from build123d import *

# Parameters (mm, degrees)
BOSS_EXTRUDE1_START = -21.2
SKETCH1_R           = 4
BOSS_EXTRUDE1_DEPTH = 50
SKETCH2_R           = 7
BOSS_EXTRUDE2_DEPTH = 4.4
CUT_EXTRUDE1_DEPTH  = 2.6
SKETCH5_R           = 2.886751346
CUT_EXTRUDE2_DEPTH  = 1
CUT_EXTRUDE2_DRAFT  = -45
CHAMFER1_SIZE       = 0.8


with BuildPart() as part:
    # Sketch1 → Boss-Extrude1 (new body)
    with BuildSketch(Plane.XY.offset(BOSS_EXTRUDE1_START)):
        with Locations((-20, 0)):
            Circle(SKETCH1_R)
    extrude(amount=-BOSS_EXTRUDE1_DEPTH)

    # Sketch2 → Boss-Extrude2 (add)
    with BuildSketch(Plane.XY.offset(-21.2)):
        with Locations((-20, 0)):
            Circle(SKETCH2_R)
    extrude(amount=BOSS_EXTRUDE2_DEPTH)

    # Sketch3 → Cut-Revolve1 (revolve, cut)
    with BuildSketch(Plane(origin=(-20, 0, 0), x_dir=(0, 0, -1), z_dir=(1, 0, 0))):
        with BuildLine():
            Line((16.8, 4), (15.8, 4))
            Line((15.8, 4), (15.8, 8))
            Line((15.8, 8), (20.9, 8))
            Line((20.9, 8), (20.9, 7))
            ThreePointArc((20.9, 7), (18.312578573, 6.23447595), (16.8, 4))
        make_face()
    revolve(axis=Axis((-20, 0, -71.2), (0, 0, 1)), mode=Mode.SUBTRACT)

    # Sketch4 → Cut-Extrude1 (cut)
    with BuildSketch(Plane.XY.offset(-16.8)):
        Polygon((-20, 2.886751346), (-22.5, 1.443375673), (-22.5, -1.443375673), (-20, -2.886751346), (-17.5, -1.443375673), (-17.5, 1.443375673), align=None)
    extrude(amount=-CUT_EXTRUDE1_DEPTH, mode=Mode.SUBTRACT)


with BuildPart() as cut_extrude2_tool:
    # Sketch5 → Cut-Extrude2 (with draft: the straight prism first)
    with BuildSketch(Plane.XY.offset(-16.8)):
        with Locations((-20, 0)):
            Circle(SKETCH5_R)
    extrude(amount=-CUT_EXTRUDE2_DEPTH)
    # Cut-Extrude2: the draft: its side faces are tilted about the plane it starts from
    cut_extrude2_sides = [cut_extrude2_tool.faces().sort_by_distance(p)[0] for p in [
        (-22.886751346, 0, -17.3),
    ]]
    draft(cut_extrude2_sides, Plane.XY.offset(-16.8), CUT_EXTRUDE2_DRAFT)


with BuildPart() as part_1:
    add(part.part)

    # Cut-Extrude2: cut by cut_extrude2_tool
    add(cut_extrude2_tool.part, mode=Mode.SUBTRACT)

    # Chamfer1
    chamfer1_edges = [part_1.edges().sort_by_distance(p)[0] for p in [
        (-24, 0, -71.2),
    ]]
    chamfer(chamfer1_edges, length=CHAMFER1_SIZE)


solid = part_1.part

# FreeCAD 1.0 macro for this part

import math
import FreeCAD as App
import Part
import Sketcher
from FreeCAD import Vector
Q = App.Units.Quantity


def edges_at(feature, points):
    """Names of the edges that pass closest to the given points."""
    edges = feature.Shape.Edges
    near = lambda p: min(range(len(edges)), key=lambda i: edges[i].distToShape(Part.Vertex(*p))[0])
    return sorted({f"Edge{near(p) + 1}" for p in points})


def faces_at(feature, points):
    """Names of the faces that lie closest to the given points."""
    faces = feature.Shape.Faces
    near = lambda p: min(range(len(faces)), key=lambda i: faces[i].distToShape(Part.Vertex(*p))[0])
    return sorted({f"Face{near(p) + 1}" for p in points})


def add_polygon(sketch, points):
    """Adds a closed chain of lines whose ends are joined by coincident constraints."""
    first, n = sketch.GeometryCount, len(points)
    for a, b in zip(points, points[1:] + points[:1]):
        sketch.addGeometry(Part.LineSegment(App.Vector(*a, 0), App.Vector(*b, 0)), False)
    for i in range(n):
        sketch.addConstraint(Sketcher.Constraint("Coincident", first + i, 2, first + (i + 1) % n, 1))

doc = App.newDocument("Part")
body = doc.addObject("PartDesign::Body", "Body")

# Sketch on XY plane
sketch1 = doc.addObject("Sketcher::SketchObject", "Sketch")
body.addObject(sketch1)
sketch1.AttachmentSupport = (doc.XY_Plane, [""])
sketch1.MapMode = "FlatFace"
sketch1.AttachmentOffset = App.Placement(Vector(0, 0, -21.2), App.Rotation())
sketch1.addGeometry(Part.Circle(Vector(-20, 0, 0), Vector(0, 0, 1), 4), False)
sketch1.addConstraint([
    Sketcher.Constraint("PointOnObject", 0, 3, -1),
    Sketcher.Constraint("Diameter", 0, 8.0),
    Sketcher.Constraint("DistanceX", 0, 3, -1, 1, 20.0),
])
pad1 = doc.addObject("PartDesign::Pad", "Pad")
body.addObject(pad1)
pad1.Profile = sketch1
pad1.Length = 50
pad1.Reversed = True

# Sketch on XY plane
sketch2 = doc.addObject("Sketcher::SketchObject", "Sketch001")
body.addObject(sketch2)
sketch2.AttachmentSupport = (doc.XY_Plane, [""])
sketch2.MapMode = "FlatFace"
sketch2.AttachmentOffset = App.Placement(Vector(0, 0, -21.2), App.Rotation())
sketch2.addGeometry(Part.Circle(Vector(-20, 0, 0), Vector(0, 0, 1), 7), False)
sketch2.addConstraint([
    Sketcher.Constraint("PointOnObject", 0, 3, -1),
    Sketcher.Constraint("Diameter", 0, 14.0),
    Sketcher.Constraint("DistanceX", 0, 3, -1, 1, 20.0),
])
pad2 = doc.addObject("PartDesign::Pad", "Pad001")
body.addObject(pad2)
pad2.Profile = sketch2
pad2.Length = 4.4

# Sketch on YZ plane
sketch3 = doc.addObject("Sketcher::SketchObject", "Sketch002")
body.addObject(sketch3)
sketch3.AttachmentSupport = (doc.YZ_Plane, [""])
sketch3.MapMode = "FlatFace"
sketch3.AttachmentOffset = App.Placement(Vector(0, 0, -20), App.Rotation())
sketch3.addGeometry([
    Part.LineSegment(Vector(4, -15.8, 0), Vector(4, -16.8, 0)),  # 0
    Part.ArcOfCircle(Part.Circle(Vector(3.006355, -20.674619, 0), Vector(0, 0, 1), 4), math.radians(-3.230062), math.radians(75.616477)),  # 1
    Part.LineSegment(Vector(7, -20.9, 0), Vector(8, -20.9, 0)),  # 2
    Part.LineSegment(Vector(8, -20.9, 0), Vector(8, -15.8, 0)),  # 3
    Part.LineSegment(Vector(8, -15.8, 0), Vector(4, -15.8, 0)),  # 4
], False)
sketch3.addConstraint([
    Sketcher.Constraint("Coincident", 0, 2, 1, 2),
    Sketcher.Constraint("Coincident", 1, 1, 2, 1),
    Sketcher.Constraint("Coincident", 2, 2, 3, 1),
    Sketcher.Constraint("Coincident", 3, 2, 4, 1),
    Sketcher.Constraint("Coincident", 4, 2, 0, 1),
    Sketcher.Constraint("Vertical", 0),
    Sketcher.Constraint("Horizontal", 2),
    Sketcher.Constraint("Vertical", 3),
    Sketcher.Constraint("Horizontal", 4),
    Sketcher.Constraint("Equal", 2, 0),
    Sketcher.Constraint("Radius", 1, 4.0),
    Sketcher.Constraint("DistanceX", 2, 1, 2, 2, 1.0),
    Sketcher.Constraint("DistanceX", 4, 2, 4, 1, 4.0),
    Sketcher.Constraint("DistanceY", 3, 1, 3, 2, 5.1),
    Sketcher.Constraint("DistanceX", -1, 1, 0, 2, 4.0),
    Sketcher.Constraint("DistanceY", 0, 2, -1, 1, 16.8),
])
groove = doc.addObject("PartDesign::Groove", "Groove")
body.addObject(groove)
groove.Profile = sketch3
groove.ReferenceAxis = (sketch3, ["V_Axis"])
groove.Angle = 360

# Sketch on XY plane
sketch4 = doc.addObject("Sketcher::SketchObject", "Sketch003")
body.addObject(sketch4)
sketch4.AttachmentSupport = (doc.XY_Plane, [""])
sketch4.MapMode = "FlatFace"
sketch4.AttachmentOffset = App.Placement(Vector(0, 0, -16.8), App.Rotation())
add_polygon(sketch4, [(-20, 2.886751), (-22.5, 1.443376), (-22.5, -1.443376), (-20, -2.886751), (-17.5, -1.443376), (-17.5, 1.443376)])  # lines 0-5
sketch4.addConstraint([
    Sketcher.Constraint("Vertical", 1),
    Sketcher.Constraint("Vertical", 4),
    Sketcher.Constraint("Symmetric", 2, 2, 5, 2, -1),
    Sketcher.Constraint("Parallel", 0, 3),
    Sketcher.Constraint("Parallel", 2, 5),
    Sketcher.Constraint("Horizontal", 1, 2, 3, 2),
    Sketcher.Constraint("Horizontal", 0, 2, 4, 2),
    Sketcher.Constraint("Angle", 0, Q("-150 deg")),
    Sketcher.Constraint("DistanceX", 2, 2, -1, 1, 20.0),
    Sketcher.Constraint("DistanceX", 1, 2, 3, 2, 5.0),
    Sketcher.Constraint("DistanceY", 1, 2, 1, 1, 2.886751),
])
pocket1 = doc.addObject("PartDesign::Pocket", "Pocket")
body.addObject(pocket1)
pocket1.Profile = sketch4
pocket1.Length = 2.6
body2 = doc.addObject("PartDesign::Body", "Body001")

# Sketch on XY plane
sketch5 = doc.addObject("Sketcher::SketchObject", "Sketch004")
body2.addObject(sketch5)
sketch5.AttachmentSupport = (doc.getObject("XY_Plane001"), [""])
sketch5.MapMode = "FlatFace"
sketch5.AttachmentOffset = App.Placement(Vector(0, 0, -16.8), App.Rotation())
sketch5.addGeometry(Part.Circle(Vector(-20, 0, 0), Vector(0, 0, 1), 2.886751), False)
sketch5.addConstraint([
    Sketcher.Constraint("PointOnObject", 0, 3, -1),
    Sketcher.Constraint("DistanceX", 0, 3, -1, 1, 20.0),
    Sketcher.Constraint("Diameter", 0, 5.773503),
])
pad3 = doc.addObject("PartDesign::Pad", "Pad002")
body2.addObject(pad3)
pad3.Profile = sketch5
pad3.Length = 1
pad3.Reversed = True
doc.recompute()

datumplane = doc.addObject("PartDesign::Plane", "DatumPlane")
body2.addObject(datumplane)
datumplane.AttachmentSupport = (doc.getObject("XY_Plane001"), [""])
datumplane.MapMode = "FlatFace"
datumplane.AttachmentOffset = App.Placement(Vector(0, 0, -16.8), App.Rotation())
draft = doc.addObject("PartDesign::Draft", "Draft")
body2.addObject(draft)
draft.Base = (pad3, faces_at(pad3, [(-22.887, 0, -17.3)]))
draft.NeutralPlane = (datumplane, [""])
draft.Angle = 45
draft.Reversed = True
doc.recompute()

boolean = doc.addObject("PartDesign::Boolean", "Boolean")
body.addObject(boolean)
boolean.Type = "Cut"
boolean.addObjects([body2])
doc.recompute()

chamfer = doc.addObject("PartDesign::Chamfer", "Chamfer")
body.addObject(chamfer)
chamfer.Base = (boolean, edges_at(boolean, [(-24, 0, -71.2)]))
chamfer.Size = 0.8

doc.recompute()
